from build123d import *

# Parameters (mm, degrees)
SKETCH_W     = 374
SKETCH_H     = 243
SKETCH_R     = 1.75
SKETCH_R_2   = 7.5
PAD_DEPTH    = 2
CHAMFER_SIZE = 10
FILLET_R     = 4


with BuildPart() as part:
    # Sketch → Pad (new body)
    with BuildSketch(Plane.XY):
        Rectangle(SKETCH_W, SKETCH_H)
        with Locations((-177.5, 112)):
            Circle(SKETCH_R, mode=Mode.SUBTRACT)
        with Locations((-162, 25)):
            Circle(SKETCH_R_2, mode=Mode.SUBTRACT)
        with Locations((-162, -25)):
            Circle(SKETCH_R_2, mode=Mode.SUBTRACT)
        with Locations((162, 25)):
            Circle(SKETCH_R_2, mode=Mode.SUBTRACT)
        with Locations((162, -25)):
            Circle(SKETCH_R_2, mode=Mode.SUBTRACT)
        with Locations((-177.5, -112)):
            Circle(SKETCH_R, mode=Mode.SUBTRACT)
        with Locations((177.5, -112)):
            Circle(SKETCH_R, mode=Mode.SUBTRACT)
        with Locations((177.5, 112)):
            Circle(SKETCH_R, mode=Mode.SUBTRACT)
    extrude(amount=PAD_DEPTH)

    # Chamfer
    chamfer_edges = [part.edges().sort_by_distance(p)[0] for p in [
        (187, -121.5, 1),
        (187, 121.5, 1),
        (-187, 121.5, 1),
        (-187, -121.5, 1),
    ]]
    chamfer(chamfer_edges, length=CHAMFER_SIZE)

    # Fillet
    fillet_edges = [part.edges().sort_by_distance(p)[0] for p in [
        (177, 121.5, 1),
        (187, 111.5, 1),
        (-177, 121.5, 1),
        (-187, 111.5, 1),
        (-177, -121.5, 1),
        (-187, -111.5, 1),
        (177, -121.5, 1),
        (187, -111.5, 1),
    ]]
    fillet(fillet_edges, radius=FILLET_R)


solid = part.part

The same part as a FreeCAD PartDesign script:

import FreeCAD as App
import Part
import Sketcher


def edges_at(feature, points):
    """Names of the edges that pass closest to the given points."""
    edges = feature.Shape.Edges
    near = lambda p: min(range(len(edges)), key=lambda i: edges[i].distToShape(Part.Vertex(*p))[0])
    return sorted({f"Edge{near(p) + 1}" for p in points})

doc = App.newDocument("Part")
body = doc.addObject("PartDesign::Body", "Body")

# Sketch on XY plane
sketch1 = body.newObject("Sketcher::SketchObject", "Sketch")
sketch1.AttachmentSupport = (doc.getObject("XY_Plane"), [""])
sketch1.MapMode = "FlatFace"
sketch1.addGeometry([
    Part.LineSegment(App.Vector(-187, 121.5, 0), App.Vector(-187, -121.5, 0)),  # 0
    Part.LineSegment(App.Vector(-187, -121.5, 0), App.Vector(187, -121.5, 0)),  # 1
    Part.LineSegment(App.Vector(187, -121.5, 0), App.Vector(187, 121.5, 0)),  # 2
    Part.LineSegment(App.Vector(187, 121.5, 0), App.Vector(-187, 121.5, 0)),  # 3
    Part.Circle(App.Vector(-177.5, -112, 0), App.Vector(0, 0, 1), 1.8),  # 4
    Part.Circle(App.Vector(-162, -25, 0), App.Vector(0, 0, 1), 7.5),  # 5
    Part.Circle(App.Vector(177.5, -112, 0), App.Vector(0, 0, 1), 1.8),  # 6
    Part.Circle(App.Vector(162, -25, 0), App.Vector(0, 0, 1), 7.5),  # 7
    Part.Circle(App.Vector(-162, 25, 0), App.Vector(0, 0, 1), 7.5),  # 8
    Part.Circle(App.Vector(-177.5, 112, 0), App.Vector(0, 0, 1), 1.8),  # 9
    Part.Circle(App.Vector(162, 25, 0), App.Vector(0, 0, 1), 7.5),  # 10
    Part.Circle(App.Vector(177.5, 112, 0), App.Vector(0, 0, 1), 1.8),  # 11
], False)
sketch1.addConstraint([
    Sketcher.Constraint("Coincident", 0, 2, 1, 1),
    Sketcher.Constraint("Coincident", 1, 2, 2, 1),
    Sketcher.Constraint("Coincident", 2, 2, 3, 1),
    Sketcher.Constraint("Coincident", 3, 2, 0, 1),
    Sketcher.Constraint("Vertical", 0),
    Sketcher.Constraint("Horizontal", 1),
    Sketcher.Constraint("Vertical", 2),
    Sketcher.Constraint("Horizontal", 3),
    Sketcher.Constraint("Equal", 4, 6),
    Sketcher.Constraint("Equal", 5, 7),
    Sketcher.Constraint("Equal", 7, 8),
    Sketcher.Constraint("Equal", 6, 9),
    Sketcher.Constraint("Equal", 8, 10),
    Sketcher.Constraint("Equal", 9, 11),
    Sketcher.Constraint("Symmetric", 7, 3, 8, 3, -1, 1),
    Sketcher.Constraint("Symmetric", 6, 3, 9, 3, -1, 1),
    Sketcher.Constraint("Symmetric", 5, 3, 10, 3, -1, 1),
    Sketcher.Constraint("Symmetric", 4, 3, 11, 3, -1, 1),
    Sketcher.Constraint("Symmetric", 0, 2, 2, 2, -1, 1),
    Sketcher.Constraint("Symmetric", 4, 3, 6, 3, -2),
    Sketcher.Constraint("Symmetric", 5, 3, 7, 3, -2),
    Sketcher.Constraint("Diameter", 5, 15.0),
    Sketcher.Constraint("Diameter", 4, 3.5),
    Sketcher.Constraint("DistanceX", 1, 1, 1, 2, 374.0),
    Sketcher.Constraint("DistanceY", 0, 2, 0, 1, 243.0),
    Sketcher.Constraint("DistanceY", 4, 3, -1, 1, 112.0),
    Sketcher.Constraint("DistanceX", 5, 3, -1, 1, 162.0),
    Sketcher.Constraint("DistanceY", 5, 3, -1, 1, 25.0),
    Sketcher.Constraint("DistanceX", 4, 3, 6, 3, 355.0),
])
pad1 = body.newObject("PartDesign::Pad", "Pad")
pad1.Profile = sketch1
pad1.Length = 2
doc.recompute()

chamfer = body.newObject("PartDesign::Chamfer", "Chamfer")
chamfer.Base = (pad1, edges_at(pad1, [
    (187, -121.5, 1),
    (187, 121.5, 1),
    (-187, 121.5, 1),
    (-187, -121.5, 1),
]))
chamfer.Size = 10
doc.recompute()

fillet = body.newObject("PartDesign::Fillet", "Fillet")
fillet.Base = (chamfer, edges_at(chamfer, [
    (177, 121.5, 1),
    (187, 111.5, 1),
    (-177, 121.5, 1),
    (-187, 111.5, 1),
    (-177, -121.5, 1),
    (-187, -111.5, 1),
    (177, -121.5, 1),
    (187, -111.5, 1),
]))
fillet.Radius = 4

doc.recompute()
